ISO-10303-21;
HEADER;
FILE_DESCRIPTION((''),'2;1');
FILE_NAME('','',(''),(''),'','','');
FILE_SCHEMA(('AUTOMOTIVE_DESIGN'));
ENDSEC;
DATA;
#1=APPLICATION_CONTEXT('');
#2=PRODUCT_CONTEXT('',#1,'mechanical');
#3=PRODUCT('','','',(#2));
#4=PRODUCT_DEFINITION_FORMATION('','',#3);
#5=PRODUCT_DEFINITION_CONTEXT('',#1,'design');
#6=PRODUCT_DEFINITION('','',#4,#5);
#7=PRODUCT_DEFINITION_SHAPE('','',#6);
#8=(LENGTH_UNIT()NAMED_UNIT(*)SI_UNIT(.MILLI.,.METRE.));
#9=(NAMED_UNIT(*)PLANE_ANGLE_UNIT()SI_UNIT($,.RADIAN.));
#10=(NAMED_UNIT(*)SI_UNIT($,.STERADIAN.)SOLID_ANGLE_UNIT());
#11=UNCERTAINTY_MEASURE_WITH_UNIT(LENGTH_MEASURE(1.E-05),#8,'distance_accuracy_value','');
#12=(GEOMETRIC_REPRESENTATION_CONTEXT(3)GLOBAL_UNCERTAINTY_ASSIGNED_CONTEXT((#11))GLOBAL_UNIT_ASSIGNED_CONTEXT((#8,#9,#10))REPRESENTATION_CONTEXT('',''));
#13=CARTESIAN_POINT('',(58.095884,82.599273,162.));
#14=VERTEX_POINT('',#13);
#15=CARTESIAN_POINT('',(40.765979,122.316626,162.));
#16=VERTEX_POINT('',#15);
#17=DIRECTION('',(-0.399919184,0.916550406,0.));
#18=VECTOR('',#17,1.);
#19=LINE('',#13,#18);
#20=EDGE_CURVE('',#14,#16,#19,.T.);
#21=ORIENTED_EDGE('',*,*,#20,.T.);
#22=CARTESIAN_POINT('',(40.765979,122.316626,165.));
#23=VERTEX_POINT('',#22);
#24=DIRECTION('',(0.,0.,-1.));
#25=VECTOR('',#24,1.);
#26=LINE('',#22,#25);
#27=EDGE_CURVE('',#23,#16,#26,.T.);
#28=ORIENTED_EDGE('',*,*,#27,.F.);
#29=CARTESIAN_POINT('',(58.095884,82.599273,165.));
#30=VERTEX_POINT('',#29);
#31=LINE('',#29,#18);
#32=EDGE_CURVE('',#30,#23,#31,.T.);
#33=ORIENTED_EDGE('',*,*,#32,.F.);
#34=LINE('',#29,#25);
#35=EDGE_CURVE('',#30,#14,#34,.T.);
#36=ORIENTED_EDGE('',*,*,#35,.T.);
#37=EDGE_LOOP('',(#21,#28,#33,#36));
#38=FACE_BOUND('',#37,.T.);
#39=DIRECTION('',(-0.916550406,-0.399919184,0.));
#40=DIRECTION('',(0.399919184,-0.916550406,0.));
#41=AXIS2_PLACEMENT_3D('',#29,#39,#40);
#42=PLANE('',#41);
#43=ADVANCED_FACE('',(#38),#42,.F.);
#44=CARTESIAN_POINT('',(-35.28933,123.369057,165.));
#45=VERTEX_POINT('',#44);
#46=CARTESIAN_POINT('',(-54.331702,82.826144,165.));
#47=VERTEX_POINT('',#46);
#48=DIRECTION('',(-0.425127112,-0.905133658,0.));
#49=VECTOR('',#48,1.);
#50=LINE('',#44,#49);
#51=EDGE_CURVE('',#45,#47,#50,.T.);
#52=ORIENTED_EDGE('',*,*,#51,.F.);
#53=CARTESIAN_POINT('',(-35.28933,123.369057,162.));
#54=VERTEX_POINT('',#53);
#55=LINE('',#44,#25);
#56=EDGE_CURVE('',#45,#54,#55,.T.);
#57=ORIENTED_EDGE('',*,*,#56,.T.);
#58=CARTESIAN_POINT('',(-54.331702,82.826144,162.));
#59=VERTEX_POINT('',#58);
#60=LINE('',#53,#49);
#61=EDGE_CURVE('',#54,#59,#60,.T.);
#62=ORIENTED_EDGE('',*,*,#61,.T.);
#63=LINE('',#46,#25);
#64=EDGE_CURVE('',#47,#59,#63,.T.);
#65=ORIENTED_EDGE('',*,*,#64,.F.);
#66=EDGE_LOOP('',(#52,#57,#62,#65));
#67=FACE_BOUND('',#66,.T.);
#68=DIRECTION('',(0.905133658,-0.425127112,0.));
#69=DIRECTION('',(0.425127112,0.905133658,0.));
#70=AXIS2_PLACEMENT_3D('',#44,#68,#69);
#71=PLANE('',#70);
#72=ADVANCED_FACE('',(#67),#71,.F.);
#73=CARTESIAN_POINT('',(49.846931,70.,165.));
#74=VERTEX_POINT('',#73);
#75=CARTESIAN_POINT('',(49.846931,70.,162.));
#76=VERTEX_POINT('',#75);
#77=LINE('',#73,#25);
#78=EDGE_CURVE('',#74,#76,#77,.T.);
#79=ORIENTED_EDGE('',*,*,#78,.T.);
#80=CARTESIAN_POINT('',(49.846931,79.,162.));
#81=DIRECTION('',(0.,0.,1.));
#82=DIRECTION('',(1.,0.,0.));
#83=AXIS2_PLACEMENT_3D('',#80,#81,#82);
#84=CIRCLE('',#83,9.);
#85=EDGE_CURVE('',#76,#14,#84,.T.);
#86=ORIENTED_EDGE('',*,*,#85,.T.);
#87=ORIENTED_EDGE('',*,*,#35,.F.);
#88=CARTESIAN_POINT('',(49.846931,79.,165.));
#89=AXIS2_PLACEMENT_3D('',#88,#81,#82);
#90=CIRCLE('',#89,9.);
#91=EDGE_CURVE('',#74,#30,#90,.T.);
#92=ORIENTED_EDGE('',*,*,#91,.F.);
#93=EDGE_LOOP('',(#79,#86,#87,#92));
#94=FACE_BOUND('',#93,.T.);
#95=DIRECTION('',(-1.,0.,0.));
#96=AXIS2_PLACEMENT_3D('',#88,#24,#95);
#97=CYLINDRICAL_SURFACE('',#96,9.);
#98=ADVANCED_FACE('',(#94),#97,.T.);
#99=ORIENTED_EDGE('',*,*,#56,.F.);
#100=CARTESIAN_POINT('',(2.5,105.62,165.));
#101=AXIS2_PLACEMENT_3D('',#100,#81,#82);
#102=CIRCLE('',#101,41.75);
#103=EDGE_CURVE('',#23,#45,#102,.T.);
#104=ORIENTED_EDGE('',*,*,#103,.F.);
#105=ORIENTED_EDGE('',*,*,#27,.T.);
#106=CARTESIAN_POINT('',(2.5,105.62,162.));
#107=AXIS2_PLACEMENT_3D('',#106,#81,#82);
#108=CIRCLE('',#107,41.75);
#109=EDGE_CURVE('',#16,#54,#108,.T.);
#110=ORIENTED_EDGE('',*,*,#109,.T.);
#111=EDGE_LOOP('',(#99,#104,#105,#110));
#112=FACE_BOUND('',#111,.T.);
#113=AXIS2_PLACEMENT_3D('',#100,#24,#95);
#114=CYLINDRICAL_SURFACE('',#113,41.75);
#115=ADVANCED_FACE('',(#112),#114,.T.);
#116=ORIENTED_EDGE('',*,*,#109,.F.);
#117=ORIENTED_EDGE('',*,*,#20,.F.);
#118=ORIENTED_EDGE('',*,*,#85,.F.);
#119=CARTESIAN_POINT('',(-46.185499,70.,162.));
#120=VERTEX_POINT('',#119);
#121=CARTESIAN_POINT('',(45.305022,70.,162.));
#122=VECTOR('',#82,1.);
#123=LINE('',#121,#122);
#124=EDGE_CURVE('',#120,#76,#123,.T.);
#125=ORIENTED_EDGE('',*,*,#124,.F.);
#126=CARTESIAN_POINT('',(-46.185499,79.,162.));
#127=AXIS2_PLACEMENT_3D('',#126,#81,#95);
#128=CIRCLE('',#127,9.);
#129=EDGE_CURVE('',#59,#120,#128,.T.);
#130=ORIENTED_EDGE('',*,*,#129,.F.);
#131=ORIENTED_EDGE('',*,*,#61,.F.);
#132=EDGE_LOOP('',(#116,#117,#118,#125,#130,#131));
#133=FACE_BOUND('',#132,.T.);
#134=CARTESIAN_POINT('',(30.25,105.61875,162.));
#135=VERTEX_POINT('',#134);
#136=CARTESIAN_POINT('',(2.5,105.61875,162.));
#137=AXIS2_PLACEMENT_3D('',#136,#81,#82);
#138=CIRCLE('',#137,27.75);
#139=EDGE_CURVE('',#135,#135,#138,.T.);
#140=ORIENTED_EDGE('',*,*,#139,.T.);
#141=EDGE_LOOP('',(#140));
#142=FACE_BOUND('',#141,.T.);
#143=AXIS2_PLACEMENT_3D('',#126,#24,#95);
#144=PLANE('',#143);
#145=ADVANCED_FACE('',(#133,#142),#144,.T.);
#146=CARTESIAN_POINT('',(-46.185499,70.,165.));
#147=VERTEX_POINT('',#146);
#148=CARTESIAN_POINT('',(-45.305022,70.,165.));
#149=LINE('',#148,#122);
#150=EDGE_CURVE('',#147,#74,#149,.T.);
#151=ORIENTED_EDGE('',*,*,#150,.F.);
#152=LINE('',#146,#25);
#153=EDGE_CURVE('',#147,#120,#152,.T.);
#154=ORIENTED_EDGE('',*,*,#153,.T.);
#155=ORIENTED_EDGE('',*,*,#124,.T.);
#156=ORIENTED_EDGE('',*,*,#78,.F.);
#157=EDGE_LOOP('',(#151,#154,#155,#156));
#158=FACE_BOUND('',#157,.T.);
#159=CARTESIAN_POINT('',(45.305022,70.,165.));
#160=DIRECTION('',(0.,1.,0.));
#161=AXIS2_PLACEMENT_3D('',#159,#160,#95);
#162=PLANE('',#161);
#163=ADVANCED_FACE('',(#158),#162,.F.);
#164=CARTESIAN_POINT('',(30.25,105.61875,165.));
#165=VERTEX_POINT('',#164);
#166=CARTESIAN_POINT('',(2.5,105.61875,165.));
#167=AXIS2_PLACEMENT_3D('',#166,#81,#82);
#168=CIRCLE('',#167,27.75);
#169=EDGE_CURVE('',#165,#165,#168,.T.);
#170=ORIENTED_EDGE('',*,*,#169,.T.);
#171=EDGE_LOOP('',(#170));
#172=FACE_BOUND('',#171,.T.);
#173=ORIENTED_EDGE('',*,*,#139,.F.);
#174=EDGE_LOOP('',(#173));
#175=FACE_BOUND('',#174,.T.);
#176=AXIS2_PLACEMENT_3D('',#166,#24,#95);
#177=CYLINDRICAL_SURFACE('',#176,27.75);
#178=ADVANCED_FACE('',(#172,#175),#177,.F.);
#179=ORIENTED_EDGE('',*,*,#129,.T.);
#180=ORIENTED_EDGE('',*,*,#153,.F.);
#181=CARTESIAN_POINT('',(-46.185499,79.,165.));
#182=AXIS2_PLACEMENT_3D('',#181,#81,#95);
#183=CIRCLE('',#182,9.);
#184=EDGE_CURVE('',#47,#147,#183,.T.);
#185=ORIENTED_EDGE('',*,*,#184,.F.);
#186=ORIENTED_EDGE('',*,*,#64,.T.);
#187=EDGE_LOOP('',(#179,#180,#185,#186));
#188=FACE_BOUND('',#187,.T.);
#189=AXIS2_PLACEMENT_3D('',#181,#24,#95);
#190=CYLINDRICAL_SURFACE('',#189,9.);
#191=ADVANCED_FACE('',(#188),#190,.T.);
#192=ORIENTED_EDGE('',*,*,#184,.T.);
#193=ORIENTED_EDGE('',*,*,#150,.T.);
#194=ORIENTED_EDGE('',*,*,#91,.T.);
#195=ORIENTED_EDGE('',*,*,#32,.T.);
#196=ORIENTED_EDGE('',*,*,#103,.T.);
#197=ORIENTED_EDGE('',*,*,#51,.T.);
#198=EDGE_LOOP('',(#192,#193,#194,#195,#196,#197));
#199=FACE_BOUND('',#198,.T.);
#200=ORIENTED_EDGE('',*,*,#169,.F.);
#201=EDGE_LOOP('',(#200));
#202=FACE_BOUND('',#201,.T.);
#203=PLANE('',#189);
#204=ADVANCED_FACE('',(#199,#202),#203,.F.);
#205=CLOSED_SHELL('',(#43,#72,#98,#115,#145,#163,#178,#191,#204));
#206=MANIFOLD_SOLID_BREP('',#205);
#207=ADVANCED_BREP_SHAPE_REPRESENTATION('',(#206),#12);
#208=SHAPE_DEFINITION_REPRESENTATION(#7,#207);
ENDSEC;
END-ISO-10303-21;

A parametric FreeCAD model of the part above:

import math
import FreeCAD as App
import Part
import Sketcher
Q = App.Units.Quantity

doc = App.newDocument("Part")
body = doc.addObject("PartDesign::Body", "Body")

sketch1 = doc.addObject("Sketcher::SketchObject", "Sketch")
body.addObject(sketch1)
sketch1.AttachmentSupport = (doc.XY_Plane, [""])
sketch1.MapMode = "FlatFace"
sketch1.AttachmentOffset = App.Placement(App.Vector(0, 0, 162), App.Rotation())
sketch1.addGeometry(Part.ArcOfCircle(Part.Circle(App.Vector(50, 79, 0), App.Vector(0, 0, 1), 9), math.radians(-90), math.radians(24)), False)
sketch1.addGeometry(Part.LineSegment(App.Vector(58, 83, 0), App.Vector(41, 122, 0)), False)
sketch1.addGeometry(Part.ArcOfCircle(Part.Circle(App.Vector(2, 106, 0), App.Vector(0, 0, 1), 42), math.radians(24), math.radians(155)), False)
sketch1.addGeometry(Part.LineSegment(App.Vector(-35, 123, 0), App.Vector(-54, 83, 0)), False)
sketch1.addGeometry(Part.ArcOfCircle(Part.Circle(App.Vector(-46, 79, 0), App.Vector(0, 0, 1), 9), math.radians(155), math.radians(270)), False)
sketch1.addGeometry(Part.LineSegment(App.Vector(-46, 70, 0), App.Vector(50, 70, 0)), False)
sketch1.addGeometry(Part.Circle(App.Vector(2, 106, 0), App.Vector(0, 0, 1), 28), False)
sketch1.addConstraint(Sketcher.Constraint("Tangent", 0, 2, 1, 1))
sketch1.addConstraint(Sketcher.Constraint("Tangent", 1, 2, 2, 1))
sketch1.addConstraint(Sketcher.Constraint("Tangent", 2, 2, 3, 1))
sketch1.addConstraint(Sketcher.Constraint("Tangent", 3, 2, 4, 1))
sketch1.addConstraint(Sketcher.Constraint("Tangent", 4, 2, 5, 1))
sketch1.addConstraint(Sketcher.Constraint("Tangent", 5, 2, 0, 1))
sketch1.addConstraint(Sketcher.Constraint("Horizontal", 5))
sketch1.addConstraint(Sketcher.Constraint("Equal", 0, 4))
sketch1.addConstraint(Sketcher.Constraint("Vertical", 2, 3, 6, 3))
sketch1.addConstraint(Sketcher.Constraint("Radius", 0, Q("9 mm")))
sketch1.addConstraint(Sketcher.Constraint("Diameter", 6, Q("55.5 mm")))
sketch1.addConstraint(Sketcher.Constraint("Radius", 2, Q("41.75 mm")))
sketch1.addConstraint(Sketcher.Constraint("DistanceY", -1, 1, 0, 3, Q("79 mm")))
sketch1.addConstraint(Sketcher.Constraint("DistanceX", -1, 1, 2, 3, Q("2.5 mm")))
sketch1.addConstraint(Sketcher.Constraint("DistanceY", -1, 1, 2, 3, Q("105.62 mm")))
sketch1.addConstraint(Sketcher.Constraint("DistanceX", 5, 1, 5, 2, Q("96.03243 mm")))
sketch1.addConstraint(Sketcher.Constraint("DistanceX", 4, 3, -1, 1, Q("46.185499 mm")))
sketch1.addConstraint(Sketcher.Constraint("DistanceY", -1, 1, 6, 3, Q("105.61875 mm")))
pad1 = doc.addObject("PartDesign::Pad", "Pad")
body.addObject(pad1)
pad1.Profile = sketch1
pad1.Length = 3

doc.recompute()
